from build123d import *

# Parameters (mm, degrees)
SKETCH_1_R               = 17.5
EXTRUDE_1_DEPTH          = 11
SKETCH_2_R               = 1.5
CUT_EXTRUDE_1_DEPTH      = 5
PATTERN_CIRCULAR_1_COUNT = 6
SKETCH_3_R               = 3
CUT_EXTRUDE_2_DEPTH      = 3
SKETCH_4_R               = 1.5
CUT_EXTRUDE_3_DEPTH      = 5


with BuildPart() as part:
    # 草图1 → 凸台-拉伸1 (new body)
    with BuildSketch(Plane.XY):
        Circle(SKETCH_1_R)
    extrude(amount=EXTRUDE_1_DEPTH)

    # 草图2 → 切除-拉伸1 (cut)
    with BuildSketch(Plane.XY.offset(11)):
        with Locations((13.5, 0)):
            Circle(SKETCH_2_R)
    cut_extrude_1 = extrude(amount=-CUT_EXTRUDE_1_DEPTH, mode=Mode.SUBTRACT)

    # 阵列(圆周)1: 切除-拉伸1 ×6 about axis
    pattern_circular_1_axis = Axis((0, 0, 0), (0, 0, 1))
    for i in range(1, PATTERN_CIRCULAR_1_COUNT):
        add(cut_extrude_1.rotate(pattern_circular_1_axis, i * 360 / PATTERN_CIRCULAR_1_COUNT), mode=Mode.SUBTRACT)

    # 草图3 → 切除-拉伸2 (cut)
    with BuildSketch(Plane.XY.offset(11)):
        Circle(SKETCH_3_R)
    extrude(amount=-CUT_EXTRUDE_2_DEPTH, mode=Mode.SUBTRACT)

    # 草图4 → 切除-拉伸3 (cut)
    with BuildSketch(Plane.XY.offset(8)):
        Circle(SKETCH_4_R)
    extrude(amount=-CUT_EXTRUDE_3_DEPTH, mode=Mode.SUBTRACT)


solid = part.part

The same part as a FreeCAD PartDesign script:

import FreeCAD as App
import Part
import Sketcher

V = App.Vector
Q = App.Units.Quantity

doc = App.newDocument("Part")
body = doc.addObject("PartDesign::Body", "Body")

sketch1 = doc.addObject("Sketcher::SketchObject", "Sketch")
body.addObject(sketch1)
sketch1.AttachmentSupport = (doc.XY_Plane, [""])
sketch1.MapMode = "FlatFace"
sketch1.addGeometry(Part.Circle(V(0, 0, 0), V(0, 0, 1), 18), False)
sketch1.addConstraint([
    Sketcher.Constraint("Coincident", 0, 3, -1, 1),
    Sketcher.Constraint("Diameter", 0, Q("35 mm")),
])
pad1 = doc.addObject("PartDesign::Pad", "Pad")
body.addObject(pad1)
pad1.Profile = sketch1
pad1.Length = 11

sketch2 = doc.addObject("Sketcher::SketchObject", "Sketch001")
body.addObject(sketch2)
sketch2.AttachmentSupport = (doc.XY_Plane, [""])
sketch2.MapMode = "FlatFace"
sketch2.AttachmentOffset = App.Placement(V(0, 0, 11), App.Rotation())
sketch2.addGeometry(Part.Circle(V(13.5, 0, 0), V(0, 0, 1), 1.5), False)
sketch2.addConstraint([
    Sketcher.Constraint("PointOnObject", 0, 3, -1),
    Sketcher.Constraint("Diameter", 0, Q("3 mm")),
    Sketcher.Constraint("DistanceX", -1, 1, 0, 3, Q("13.5 mm")),
])
pocket1 = doc.addObject("PartDesign::Pocket", "Pocket")
body.addObject(pocket1)
pocket1.Profile = sketch2
pocket1.Length = 5
doc.recompute()

polarpattern = doc.addObject("PartDesign::PolarPattern", "PolarPattern")
body.addObject(polarpattern)
polarpattern.Originals = [pocket1]
polarpattern.Axis = (doc.Z_Axis, [""])
polarpattern.Angle = 360
polarpattern.Occurrences = 6
body.Tip = polarpattern

sketch3 = doc.addObject("Sketcher::SketchObject", "Sketch002")
body.addObject(sketch3)
sketch3.AttachmentSupport = (doc.XY_Plane, [""])
sketch3.MapMode = "FlatFace"
sketch3.AttachmentOffset = App.Placement(V(0, 0, 11), App.Rotation())
sketch3.addGeometry(Part.Circle(V(0, 0, 0), V(0, 0, 1), 3), False)
sketch3.addConstraint([
    Sketcher.Constraint("Coincident", 0, 3, -1, 1),
    Sketcher.Constraint("Diameter", 0, Q("6 mm")),
])
pocket2 = doc.addObject("PartDesign::Pocket", "Pocket001")
body.addObject(pocket2)
pocket2.Profile = sketch3
pocket2.Length = 3

sketch4 = doc.addObject("Sketcher::SketchObject", "Sketch003")
body.addObject(sketch4)
sketch4.AttachmentSupport = (doc.XY_Plane, [""])
sketch4.MapMode = "FlatFace"
sketch4.AttachmentOffset = App.Placement(V(0, 0, 8), App.Rotation())
sketch4.addGeometry(Part.Circle(V(0, 0, 0), V(0, 0, 1), 1.5), False)
sketch4.addConstraint([
    Sketcher.Constraint("Coincident", 0, 3, -1, 1),
    Sketcher.Constraint("Diameter", 0, Q("3 mm")),
])
pocket3 = doc.addObject("PartDesign::Pocket", "Pocket002")
body.addObject(pocket3)
pocket3.Profile = sketch4
pocket3.Length = 5

doc.recompute()
